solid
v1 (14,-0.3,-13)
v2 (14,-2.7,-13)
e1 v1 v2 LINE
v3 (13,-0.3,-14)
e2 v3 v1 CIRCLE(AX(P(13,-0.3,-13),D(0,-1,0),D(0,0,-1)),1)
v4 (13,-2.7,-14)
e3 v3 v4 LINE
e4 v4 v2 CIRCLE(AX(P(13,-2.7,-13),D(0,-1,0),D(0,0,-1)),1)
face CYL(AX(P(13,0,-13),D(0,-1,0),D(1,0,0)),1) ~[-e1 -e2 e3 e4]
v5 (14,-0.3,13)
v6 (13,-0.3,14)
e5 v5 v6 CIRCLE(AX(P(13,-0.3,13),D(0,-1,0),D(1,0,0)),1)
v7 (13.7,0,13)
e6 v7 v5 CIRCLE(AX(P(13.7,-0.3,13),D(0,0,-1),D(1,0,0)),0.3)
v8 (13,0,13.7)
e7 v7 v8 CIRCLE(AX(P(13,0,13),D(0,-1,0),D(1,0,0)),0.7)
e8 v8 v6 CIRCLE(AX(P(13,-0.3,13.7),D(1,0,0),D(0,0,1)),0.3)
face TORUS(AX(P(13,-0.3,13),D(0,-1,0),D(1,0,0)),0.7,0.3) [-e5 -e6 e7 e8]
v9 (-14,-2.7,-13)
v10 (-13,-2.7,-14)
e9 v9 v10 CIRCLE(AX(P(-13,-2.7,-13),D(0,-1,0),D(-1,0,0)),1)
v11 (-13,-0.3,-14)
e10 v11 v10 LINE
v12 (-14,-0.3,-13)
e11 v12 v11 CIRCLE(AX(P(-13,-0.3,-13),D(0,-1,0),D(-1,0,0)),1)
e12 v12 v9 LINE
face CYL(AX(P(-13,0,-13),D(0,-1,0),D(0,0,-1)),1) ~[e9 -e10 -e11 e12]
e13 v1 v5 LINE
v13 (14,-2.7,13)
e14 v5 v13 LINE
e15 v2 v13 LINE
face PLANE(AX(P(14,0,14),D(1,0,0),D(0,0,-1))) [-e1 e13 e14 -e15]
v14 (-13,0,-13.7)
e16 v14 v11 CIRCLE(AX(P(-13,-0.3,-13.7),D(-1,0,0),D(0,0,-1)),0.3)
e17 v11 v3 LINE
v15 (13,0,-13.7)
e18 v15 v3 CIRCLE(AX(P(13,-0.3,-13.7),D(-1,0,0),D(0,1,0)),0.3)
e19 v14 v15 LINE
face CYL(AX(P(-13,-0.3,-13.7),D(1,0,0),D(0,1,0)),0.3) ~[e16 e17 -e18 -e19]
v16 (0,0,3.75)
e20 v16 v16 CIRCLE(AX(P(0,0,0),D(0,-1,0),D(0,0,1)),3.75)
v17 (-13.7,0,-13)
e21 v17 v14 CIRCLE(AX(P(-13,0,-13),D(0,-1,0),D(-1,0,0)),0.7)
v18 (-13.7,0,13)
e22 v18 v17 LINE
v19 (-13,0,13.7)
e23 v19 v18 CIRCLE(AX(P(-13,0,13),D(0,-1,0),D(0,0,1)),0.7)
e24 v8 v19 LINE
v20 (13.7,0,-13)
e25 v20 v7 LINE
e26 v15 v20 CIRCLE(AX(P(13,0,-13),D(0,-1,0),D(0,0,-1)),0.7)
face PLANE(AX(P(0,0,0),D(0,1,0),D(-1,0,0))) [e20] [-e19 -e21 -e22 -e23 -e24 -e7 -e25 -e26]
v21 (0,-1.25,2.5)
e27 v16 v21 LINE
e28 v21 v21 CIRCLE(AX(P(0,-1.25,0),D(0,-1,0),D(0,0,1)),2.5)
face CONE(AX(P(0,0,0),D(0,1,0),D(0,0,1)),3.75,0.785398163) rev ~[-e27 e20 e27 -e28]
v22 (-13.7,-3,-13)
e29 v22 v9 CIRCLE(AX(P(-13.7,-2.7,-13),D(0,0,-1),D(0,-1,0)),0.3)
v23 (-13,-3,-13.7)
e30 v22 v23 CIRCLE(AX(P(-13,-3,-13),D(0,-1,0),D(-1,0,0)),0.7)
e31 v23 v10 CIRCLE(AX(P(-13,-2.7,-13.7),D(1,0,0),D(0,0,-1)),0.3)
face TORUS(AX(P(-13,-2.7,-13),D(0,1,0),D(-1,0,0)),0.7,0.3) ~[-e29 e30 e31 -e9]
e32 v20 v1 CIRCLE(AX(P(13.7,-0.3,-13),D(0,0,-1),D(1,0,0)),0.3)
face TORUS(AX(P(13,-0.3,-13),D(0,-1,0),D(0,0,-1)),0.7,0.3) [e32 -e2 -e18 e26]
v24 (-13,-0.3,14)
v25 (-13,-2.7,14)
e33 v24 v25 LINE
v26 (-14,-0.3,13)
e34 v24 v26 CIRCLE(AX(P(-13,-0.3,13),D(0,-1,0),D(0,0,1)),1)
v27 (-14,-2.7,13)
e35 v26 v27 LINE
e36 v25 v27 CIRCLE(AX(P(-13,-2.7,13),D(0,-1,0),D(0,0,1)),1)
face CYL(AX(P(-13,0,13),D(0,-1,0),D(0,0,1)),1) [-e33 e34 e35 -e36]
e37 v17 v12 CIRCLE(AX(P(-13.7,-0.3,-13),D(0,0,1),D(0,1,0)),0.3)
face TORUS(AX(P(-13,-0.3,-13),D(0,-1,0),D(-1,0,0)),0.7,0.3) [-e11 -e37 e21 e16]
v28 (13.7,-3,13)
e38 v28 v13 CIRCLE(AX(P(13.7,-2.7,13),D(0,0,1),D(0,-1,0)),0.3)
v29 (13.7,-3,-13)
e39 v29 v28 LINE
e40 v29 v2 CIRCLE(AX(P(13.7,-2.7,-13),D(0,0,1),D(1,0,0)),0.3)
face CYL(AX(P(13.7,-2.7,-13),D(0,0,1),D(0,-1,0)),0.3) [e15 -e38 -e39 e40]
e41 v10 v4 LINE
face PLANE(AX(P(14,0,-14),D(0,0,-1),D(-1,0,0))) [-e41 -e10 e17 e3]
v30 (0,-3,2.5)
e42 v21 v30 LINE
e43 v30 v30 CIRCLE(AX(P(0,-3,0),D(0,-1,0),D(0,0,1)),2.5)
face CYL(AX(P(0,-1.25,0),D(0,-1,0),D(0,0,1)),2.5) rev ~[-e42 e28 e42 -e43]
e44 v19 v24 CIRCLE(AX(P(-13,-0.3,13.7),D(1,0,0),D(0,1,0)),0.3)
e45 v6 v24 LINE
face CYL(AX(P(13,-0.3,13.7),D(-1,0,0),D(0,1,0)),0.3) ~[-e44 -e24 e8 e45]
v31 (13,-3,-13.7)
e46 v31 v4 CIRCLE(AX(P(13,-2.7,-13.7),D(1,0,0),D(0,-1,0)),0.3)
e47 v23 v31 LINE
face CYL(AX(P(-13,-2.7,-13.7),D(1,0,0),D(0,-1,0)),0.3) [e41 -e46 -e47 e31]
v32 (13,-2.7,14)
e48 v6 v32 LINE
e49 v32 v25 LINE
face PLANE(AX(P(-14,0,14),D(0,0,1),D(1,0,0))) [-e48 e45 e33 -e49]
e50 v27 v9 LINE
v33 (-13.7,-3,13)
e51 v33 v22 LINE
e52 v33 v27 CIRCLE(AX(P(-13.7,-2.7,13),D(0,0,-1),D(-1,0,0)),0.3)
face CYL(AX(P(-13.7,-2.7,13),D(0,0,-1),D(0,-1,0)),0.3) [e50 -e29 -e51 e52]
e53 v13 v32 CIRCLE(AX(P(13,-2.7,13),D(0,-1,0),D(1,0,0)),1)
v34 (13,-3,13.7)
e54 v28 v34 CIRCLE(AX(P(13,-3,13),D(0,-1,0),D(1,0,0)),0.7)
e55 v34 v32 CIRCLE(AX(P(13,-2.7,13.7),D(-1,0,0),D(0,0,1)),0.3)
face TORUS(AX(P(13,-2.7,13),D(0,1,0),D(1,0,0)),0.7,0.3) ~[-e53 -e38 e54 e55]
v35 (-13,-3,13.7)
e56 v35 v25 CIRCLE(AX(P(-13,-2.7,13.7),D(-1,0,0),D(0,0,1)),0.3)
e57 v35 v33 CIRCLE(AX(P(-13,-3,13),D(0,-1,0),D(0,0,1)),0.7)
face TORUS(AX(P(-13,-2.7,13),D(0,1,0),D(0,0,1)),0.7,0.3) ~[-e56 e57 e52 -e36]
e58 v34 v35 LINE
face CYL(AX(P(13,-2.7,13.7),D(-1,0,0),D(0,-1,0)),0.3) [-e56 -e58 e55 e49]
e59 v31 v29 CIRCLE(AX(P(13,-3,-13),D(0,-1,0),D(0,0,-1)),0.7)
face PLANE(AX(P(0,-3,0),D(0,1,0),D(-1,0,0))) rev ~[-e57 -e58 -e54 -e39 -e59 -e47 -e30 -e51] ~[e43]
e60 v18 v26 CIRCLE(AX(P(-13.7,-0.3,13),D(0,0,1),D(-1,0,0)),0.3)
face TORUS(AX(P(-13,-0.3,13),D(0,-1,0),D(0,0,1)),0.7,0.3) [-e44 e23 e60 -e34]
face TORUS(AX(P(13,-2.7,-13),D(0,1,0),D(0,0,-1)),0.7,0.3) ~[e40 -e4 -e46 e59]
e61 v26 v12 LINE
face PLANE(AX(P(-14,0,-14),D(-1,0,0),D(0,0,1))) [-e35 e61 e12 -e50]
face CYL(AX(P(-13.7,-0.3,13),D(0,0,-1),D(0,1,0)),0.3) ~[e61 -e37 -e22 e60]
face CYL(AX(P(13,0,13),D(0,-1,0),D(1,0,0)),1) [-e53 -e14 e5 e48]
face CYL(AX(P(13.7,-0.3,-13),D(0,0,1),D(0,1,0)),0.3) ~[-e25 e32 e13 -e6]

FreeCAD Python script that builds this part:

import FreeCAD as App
import Part
import Sketcher
from FreeCAD import Vector


def edges_at(feature, points):
    """Names of the edges that pass closest to the given points."""
    edges = feature.Shape.Edges
    near = lambda p: min(range(len(edges)), key=lambda i: edges[i].distToShape(Part.Vertex(*p))[0])
    return sorted({f"Edge{near(p) + 1}" for p in points})


def add_polygon(sketch, points):
    """Adds a closed chain of lines whose ends are joined by coincident constraints."""
    first, n = sketch.GeometryCount, len(points)
    for a, b in zip(points, points[1:] + points[:1]):
        sketch.addGeometry(Part.LineSegment(App.Vector(*a, 0), App.Vector(*b, 0)), False)
    for i in range(n):
        sketch.addConstraint(Sketcher.Constraint("Coincident", first + i, 2, first + (i + 1) % n, 1))

doc = App.newDocument("Part")
body = doc.addObject("PartDesign::Body", "Body")

sketch1 = body.newObject("Sketcher::SketchObject", "Sketch")
sketch1.AttachmentSupport = (doc.getObject("XZ_Plane"), [""])
sketch1.MapMode = "FlatFace"
add_polygon(sketch1, [(14, 14), (14, -14), (-14, -14), (-14, 14)])
sketch1.addConstraint([
    Sketcher.Constraint("Vertical", 0),
    Sketcher.Constraint("Horizontal", 1),
    Sketcher.Constraint("Vertical", 2),
    Sketcher.Constraint("Horizontal", 3),
    Sketcher.Constraint("Symmetric", 0, 2, 2, 2, -1, 1),
    Sketcher.Constraint("Equal", 3, 0),
    Sketcher.Constraint("DistanceX", 1, 2, 1, 1, 28.0),
])
pad1 = body.newObject("PartDesign::Pad", "Pad")
pad1.Profile = sketch1
pad1.Length = 3

sketch2 = body.newObject("Sketcher::SketchObject", "Sketch001")
sketch2.AttachmentSupport = (doc.getObject("XZ_Plane"), [""])
sketch2.MapMode = "FlatFace"
sketch2.addGeometry(Part.Circle(Vector(0, 0, 0), Vector(0, 0, 1), 2.5), False)
sketch2.addConstraint([
    Sketcher.Constraint("Coincident", 0, 3, -1, 1),
    Sketcher.Constraint("Diameter", 0, 5.0),
])
doc.recompute()
hole = body.newObject("PartDesign::Hole", "Hole")
hole.Profile = sketch2
hole.ThreadType = "None"
hole.Diameter = 5
hole.DepthType = "ThroughAll"
hole.HoleCutType = "Countersink"
hole.HoleCutDiameter = 7.5
hole.HoleCutCountersinkAngle = 90
hole.Reversed = True
doc.recompute()

fillet = body.newObject("PartDesign::Fillet", "Fillet")
fillet.Base = (hole, edges_at(hole, [
    (14, -1.5, 14),
    (14, -1.5, -14),
    (-14, -1.5, -14),
    (-14, -1.5, 14),
]))
fillet.Radius = 1
doc.recompute()

fillet2 = body.newObject("PartDesign::Fillet", "Fillet001")
fillet2.Base = (fillet, edges_at(fillet, [
    (13.707, 0, 13.707),
    (14, 0, 0),
    (13.707, 0, -13.707),
    (0, 0, -14),
    (-13.707, 0, -13.707),
    (-14, 0, 0),
    (-13.707, 0, 13.707),
    (0, 0, 14),
    (-13.707, -3, 13.707),
    (-14, -3, 0),
    (-13.707, -3, -13.707),
    (0, -3, -14),
    (13.707, -3, -13.707),
    (14, -3, 0),
    (13.707, -3, 13.707),
    (0, -3, 14),
]))
fillet2.Radius = 0.3

doc.recompute()
